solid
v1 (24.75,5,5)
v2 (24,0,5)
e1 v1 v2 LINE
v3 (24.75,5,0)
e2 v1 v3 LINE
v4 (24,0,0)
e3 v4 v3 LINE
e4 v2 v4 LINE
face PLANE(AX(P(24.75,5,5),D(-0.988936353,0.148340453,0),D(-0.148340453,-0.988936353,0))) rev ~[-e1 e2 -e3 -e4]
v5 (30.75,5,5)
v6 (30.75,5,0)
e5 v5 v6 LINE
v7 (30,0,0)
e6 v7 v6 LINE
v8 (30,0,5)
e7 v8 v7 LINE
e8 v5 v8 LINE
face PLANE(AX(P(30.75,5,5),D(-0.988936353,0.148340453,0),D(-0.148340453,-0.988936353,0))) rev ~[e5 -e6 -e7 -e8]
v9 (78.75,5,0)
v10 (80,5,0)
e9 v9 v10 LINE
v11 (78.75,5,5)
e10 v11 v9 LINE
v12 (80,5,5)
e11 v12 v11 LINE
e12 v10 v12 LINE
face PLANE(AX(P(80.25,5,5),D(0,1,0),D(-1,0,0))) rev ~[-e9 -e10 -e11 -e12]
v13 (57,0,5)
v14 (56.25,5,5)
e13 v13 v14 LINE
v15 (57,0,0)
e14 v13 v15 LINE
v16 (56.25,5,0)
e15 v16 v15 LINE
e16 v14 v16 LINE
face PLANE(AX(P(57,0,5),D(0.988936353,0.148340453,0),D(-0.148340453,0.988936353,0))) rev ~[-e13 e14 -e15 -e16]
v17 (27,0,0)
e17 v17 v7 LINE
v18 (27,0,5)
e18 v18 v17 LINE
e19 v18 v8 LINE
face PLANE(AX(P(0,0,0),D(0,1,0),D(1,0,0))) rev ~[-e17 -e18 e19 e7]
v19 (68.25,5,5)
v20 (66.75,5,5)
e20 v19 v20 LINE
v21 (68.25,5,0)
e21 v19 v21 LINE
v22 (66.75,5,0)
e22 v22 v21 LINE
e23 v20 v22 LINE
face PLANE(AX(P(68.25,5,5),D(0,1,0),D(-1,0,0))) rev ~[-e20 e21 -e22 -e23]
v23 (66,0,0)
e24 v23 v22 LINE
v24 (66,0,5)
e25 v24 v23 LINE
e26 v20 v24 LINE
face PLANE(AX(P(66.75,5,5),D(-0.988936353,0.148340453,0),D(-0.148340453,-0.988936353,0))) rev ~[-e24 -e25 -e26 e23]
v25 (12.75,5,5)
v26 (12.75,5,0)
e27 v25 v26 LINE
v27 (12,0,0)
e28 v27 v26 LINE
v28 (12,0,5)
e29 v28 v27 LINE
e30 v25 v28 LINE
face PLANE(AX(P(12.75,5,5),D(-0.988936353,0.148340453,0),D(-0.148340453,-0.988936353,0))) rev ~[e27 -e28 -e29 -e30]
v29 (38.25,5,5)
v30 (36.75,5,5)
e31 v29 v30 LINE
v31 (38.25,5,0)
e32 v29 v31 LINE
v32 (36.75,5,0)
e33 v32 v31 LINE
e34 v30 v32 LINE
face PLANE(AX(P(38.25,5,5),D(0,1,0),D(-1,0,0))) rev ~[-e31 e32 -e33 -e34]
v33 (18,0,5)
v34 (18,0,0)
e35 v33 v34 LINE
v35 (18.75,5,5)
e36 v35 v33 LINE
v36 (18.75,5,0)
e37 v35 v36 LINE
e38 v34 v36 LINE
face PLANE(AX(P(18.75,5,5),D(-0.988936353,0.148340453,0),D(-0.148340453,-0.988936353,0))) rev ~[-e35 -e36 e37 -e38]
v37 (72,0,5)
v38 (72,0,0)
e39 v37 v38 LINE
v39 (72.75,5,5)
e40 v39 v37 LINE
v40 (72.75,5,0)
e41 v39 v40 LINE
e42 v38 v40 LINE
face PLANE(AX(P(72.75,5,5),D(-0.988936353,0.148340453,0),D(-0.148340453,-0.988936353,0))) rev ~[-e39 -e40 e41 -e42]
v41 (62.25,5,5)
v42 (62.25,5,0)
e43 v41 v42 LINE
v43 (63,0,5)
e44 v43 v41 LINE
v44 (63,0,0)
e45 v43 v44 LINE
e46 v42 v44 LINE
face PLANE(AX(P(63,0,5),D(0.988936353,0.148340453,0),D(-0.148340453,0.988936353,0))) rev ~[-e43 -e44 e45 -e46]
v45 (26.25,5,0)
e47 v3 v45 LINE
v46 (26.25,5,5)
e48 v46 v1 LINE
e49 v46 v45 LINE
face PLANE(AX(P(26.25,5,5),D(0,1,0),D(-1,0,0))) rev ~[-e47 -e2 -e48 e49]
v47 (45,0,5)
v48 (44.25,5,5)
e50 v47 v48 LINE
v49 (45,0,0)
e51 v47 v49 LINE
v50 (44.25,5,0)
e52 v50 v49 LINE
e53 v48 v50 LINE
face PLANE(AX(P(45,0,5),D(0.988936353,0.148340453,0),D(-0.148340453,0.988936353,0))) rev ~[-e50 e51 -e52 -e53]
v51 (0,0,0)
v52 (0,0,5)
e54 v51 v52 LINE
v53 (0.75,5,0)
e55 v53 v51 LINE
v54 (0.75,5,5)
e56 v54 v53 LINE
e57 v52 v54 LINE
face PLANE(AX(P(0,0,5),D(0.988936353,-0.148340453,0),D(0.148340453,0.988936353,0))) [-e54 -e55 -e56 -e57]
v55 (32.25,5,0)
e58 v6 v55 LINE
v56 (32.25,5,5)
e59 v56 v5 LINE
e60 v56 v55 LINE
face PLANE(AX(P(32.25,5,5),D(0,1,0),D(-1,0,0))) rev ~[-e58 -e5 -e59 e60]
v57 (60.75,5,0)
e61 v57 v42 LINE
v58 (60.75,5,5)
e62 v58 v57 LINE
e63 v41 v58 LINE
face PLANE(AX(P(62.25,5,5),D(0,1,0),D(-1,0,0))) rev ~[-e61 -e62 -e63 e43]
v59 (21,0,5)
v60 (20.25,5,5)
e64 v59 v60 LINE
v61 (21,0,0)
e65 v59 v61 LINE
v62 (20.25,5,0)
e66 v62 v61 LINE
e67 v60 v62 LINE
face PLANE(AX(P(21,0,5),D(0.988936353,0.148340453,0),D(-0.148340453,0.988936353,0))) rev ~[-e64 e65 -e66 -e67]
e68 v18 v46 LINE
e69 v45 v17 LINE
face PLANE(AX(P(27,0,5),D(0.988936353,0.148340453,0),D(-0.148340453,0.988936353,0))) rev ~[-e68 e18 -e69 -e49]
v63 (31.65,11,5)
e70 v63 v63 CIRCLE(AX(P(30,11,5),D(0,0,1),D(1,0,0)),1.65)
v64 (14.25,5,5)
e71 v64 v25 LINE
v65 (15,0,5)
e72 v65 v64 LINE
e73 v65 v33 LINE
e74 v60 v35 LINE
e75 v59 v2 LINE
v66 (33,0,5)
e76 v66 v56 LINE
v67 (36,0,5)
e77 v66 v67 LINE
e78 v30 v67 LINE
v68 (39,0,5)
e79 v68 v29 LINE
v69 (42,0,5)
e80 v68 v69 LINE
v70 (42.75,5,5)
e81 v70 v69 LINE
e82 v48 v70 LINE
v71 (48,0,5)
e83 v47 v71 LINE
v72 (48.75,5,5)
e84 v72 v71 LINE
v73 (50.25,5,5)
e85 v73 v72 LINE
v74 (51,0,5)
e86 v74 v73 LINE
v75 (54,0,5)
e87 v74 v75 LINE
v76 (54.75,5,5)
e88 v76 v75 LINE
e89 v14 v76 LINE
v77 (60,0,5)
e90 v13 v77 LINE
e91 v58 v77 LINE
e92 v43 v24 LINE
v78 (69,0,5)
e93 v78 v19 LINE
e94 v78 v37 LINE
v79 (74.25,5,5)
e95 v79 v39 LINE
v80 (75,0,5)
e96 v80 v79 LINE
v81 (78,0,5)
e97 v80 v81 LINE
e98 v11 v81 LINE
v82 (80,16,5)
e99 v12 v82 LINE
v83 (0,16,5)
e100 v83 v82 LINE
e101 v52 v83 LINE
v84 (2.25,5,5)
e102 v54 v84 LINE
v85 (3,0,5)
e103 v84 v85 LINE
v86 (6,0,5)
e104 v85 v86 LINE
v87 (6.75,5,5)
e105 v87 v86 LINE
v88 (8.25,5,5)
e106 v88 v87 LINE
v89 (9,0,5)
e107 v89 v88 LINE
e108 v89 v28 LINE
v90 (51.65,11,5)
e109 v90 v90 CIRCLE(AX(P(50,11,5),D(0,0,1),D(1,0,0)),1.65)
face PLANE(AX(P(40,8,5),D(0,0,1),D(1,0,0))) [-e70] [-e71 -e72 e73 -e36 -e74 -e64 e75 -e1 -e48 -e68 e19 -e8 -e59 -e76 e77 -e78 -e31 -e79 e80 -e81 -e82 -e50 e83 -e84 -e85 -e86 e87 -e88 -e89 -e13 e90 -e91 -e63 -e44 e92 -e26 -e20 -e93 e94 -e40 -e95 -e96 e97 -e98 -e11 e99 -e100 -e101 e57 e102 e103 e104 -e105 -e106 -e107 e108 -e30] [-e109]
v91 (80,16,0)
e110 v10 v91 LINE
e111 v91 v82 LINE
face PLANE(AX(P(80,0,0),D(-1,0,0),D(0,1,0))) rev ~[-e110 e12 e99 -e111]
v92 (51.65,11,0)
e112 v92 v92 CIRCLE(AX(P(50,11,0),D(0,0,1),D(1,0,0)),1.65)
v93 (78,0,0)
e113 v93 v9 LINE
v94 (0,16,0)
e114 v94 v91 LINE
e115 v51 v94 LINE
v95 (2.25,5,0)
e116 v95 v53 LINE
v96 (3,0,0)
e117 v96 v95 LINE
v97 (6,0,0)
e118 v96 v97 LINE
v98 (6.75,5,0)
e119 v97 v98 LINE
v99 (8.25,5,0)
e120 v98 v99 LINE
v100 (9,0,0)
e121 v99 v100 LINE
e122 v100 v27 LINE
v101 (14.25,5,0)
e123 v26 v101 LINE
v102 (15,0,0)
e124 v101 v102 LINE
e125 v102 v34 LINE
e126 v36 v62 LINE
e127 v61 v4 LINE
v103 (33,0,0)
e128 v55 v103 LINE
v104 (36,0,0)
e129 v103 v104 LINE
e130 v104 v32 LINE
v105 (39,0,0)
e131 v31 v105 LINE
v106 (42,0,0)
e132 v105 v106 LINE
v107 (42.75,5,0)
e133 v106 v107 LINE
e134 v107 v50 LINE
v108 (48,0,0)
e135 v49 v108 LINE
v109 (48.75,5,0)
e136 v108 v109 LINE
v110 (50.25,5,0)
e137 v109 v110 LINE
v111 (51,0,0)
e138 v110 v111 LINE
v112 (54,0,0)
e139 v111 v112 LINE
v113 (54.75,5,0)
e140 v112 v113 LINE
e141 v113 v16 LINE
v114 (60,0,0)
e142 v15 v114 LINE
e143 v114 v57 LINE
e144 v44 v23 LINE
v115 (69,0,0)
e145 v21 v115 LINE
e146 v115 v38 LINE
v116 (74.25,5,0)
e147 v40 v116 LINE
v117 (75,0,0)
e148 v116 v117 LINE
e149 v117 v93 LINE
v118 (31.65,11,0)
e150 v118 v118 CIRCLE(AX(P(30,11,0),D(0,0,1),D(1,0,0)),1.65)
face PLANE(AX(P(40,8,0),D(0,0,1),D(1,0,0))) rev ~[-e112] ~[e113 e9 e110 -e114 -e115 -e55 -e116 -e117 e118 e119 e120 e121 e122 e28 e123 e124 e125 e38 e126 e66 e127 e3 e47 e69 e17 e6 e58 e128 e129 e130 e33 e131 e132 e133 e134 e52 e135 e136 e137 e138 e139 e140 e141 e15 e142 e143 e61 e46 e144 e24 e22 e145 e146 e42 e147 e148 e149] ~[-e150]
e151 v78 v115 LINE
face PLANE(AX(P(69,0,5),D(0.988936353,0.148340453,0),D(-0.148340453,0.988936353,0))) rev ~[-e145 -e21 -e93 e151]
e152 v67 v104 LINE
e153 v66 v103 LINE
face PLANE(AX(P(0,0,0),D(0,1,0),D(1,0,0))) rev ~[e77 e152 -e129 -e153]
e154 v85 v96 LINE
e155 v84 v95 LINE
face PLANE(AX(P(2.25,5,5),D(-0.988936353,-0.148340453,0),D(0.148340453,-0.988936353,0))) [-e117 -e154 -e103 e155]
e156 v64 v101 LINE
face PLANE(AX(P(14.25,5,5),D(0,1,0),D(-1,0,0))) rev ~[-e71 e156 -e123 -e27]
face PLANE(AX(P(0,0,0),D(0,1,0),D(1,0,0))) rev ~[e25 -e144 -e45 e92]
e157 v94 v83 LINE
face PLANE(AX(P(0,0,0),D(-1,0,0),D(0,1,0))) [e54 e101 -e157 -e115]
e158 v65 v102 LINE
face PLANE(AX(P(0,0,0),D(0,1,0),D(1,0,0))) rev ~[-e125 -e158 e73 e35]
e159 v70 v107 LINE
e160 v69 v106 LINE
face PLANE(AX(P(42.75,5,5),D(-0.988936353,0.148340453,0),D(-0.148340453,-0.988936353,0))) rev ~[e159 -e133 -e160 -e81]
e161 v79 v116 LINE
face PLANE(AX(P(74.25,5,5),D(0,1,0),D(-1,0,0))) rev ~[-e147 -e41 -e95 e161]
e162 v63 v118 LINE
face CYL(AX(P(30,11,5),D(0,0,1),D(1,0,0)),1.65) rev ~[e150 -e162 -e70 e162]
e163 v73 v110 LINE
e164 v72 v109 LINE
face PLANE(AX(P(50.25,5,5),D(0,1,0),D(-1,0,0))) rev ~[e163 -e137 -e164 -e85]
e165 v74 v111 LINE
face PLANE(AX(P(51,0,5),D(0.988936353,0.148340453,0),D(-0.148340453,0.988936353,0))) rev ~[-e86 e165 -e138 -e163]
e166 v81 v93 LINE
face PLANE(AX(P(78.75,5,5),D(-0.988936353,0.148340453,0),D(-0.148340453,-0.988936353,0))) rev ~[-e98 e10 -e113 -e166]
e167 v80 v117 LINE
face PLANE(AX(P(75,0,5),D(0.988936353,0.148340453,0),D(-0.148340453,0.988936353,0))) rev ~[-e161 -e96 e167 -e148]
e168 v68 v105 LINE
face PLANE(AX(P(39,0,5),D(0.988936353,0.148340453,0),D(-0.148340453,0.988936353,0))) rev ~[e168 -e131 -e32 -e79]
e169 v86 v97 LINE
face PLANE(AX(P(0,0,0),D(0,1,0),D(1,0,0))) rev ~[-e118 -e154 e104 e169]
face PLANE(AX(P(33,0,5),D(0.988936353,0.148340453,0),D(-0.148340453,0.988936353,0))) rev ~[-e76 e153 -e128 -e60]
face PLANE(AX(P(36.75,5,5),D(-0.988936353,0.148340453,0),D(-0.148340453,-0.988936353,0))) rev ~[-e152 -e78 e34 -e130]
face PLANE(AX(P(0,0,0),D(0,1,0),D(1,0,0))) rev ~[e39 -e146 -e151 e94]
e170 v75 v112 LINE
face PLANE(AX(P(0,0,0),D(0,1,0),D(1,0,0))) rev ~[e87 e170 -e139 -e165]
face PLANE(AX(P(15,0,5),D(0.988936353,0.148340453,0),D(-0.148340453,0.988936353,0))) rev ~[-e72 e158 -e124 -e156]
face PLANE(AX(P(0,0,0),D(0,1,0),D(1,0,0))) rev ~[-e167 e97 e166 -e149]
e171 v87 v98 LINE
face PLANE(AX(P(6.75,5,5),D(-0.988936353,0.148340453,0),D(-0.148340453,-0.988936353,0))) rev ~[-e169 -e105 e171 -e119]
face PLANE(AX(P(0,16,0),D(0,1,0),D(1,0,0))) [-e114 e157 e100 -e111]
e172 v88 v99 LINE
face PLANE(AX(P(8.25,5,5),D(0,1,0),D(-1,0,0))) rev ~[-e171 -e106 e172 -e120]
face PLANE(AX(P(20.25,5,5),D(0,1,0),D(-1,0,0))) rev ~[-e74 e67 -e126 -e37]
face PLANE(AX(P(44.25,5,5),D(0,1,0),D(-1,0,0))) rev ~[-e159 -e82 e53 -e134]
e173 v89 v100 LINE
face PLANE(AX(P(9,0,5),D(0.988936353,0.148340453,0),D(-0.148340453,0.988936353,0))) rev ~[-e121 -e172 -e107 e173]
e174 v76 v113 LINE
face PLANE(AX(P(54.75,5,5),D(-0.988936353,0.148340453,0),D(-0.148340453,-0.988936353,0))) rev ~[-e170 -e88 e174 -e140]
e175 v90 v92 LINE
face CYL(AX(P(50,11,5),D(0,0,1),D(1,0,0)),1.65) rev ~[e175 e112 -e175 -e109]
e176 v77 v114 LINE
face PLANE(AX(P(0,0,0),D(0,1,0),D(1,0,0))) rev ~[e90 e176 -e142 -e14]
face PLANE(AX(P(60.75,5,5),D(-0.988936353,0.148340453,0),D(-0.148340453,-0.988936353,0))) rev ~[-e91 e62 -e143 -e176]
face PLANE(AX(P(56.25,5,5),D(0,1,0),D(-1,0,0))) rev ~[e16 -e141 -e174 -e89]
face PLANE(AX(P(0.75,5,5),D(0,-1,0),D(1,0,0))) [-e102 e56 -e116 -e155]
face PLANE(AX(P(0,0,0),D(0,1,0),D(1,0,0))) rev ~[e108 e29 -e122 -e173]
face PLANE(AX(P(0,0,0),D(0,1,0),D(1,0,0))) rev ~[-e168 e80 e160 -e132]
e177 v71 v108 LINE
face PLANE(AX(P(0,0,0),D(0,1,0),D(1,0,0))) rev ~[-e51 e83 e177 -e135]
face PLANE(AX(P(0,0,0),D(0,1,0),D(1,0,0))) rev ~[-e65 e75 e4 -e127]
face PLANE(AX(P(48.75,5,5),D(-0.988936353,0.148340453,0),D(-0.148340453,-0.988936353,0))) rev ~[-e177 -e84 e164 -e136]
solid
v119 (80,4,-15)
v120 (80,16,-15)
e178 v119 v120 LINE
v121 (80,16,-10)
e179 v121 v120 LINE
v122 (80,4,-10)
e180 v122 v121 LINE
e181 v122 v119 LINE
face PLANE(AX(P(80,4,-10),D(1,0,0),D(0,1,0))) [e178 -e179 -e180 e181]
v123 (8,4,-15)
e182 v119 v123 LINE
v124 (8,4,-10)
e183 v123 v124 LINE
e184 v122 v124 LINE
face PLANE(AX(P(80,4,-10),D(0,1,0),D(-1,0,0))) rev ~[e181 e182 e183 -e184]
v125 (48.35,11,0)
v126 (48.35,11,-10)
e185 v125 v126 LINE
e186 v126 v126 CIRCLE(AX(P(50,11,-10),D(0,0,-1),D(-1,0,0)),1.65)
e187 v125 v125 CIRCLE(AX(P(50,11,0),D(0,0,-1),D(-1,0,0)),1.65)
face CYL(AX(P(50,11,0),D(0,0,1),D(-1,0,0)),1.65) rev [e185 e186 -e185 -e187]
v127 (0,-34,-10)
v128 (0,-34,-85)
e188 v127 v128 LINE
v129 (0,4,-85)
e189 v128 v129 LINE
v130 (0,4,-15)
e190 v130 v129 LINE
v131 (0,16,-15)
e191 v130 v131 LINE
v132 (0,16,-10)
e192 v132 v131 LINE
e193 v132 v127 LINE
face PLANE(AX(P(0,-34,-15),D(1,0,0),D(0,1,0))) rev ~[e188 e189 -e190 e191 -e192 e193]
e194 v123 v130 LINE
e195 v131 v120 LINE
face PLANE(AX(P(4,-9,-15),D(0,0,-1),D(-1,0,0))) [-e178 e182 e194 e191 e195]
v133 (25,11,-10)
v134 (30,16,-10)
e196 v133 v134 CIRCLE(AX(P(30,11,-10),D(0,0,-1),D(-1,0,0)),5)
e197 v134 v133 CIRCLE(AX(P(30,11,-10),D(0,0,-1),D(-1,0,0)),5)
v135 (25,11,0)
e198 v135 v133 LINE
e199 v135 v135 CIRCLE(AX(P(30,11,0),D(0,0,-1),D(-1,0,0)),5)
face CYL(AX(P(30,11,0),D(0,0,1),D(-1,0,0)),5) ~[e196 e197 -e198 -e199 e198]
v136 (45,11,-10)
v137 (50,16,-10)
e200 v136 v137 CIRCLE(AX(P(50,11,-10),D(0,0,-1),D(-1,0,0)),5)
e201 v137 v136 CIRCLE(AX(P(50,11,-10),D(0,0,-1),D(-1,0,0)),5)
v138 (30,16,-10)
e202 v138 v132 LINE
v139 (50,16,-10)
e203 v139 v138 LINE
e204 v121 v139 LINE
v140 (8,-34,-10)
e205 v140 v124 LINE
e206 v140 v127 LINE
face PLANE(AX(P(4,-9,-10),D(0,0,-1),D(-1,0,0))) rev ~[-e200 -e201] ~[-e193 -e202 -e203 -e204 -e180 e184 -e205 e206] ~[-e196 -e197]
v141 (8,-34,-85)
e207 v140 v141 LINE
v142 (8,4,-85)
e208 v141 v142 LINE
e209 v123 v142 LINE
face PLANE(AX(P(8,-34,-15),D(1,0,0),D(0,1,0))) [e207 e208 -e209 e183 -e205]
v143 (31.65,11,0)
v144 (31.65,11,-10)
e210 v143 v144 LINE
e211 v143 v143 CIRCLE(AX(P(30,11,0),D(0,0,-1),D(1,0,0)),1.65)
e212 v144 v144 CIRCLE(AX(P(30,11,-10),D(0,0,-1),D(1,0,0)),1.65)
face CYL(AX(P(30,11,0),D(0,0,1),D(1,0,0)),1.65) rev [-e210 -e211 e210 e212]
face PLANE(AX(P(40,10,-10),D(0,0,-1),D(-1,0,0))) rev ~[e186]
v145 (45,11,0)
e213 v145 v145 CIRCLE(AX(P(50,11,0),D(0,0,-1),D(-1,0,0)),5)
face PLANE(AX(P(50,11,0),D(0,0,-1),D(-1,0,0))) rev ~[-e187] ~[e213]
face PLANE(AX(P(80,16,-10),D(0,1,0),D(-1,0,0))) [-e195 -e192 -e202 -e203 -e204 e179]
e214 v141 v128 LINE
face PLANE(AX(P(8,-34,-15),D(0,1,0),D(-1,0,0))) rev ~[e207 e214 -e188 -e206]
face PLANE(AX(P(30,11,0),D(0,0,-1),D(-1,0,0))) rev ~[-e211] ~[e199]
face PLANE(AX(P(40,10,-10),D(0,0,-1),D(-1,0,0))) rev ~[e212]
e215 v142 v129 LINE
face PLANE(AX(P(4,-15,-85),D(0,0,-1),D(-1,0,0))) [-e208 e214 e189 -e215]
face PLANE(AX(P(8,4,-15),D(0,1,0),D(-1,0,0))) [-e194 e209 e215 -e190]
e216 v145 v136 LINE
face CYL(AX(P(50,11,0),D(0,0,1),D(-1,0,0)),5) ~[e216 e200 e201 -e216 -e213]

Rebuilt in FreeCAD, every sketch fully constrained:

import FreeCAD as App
import Part
import Sketcher
Q = App.Units.Quantity


def add_polygon(sketch, points):
    """Adds a closed chain of lines whose ends are joined by coincident constraints."""
    first, n = sketch.GeometryCount, len(points)
    for a, b in zip(points, points[1:] + points[:1]):
        sketch.addGeometry(Part.LineSegment(App.Vector(*a, 0), App.Vector(*b, 0)), False)
    for i in range(n):
        sketch.addConstraint(Sketcher.Constraint("Coincident", first + i, 2, first + (i + 1) % n, 1))

doc = App.newDocument("Part")
body = doc.addObject("PartDesign::Body", "Body")

# Sketch on XY plane
sketch1 = doc.addObject("Sketcher::SketchObject", "Sketch")
body.addObject(sketch1)
sketch1.AttachmentSupport = (doc.XY_Plane, [""])
sketch1.MapMode = "FlatFace"
add_polygon(sketch1, [(0, 16), (0, 0), (80, 0), (80, 16)])  # lines 0-3
sketch1.addConstraint([
    Sketcher.Constraint("Vertical", 0),
    Sketcher.Constraint("Horizontal", 1),
    Sketcher.Constraint("Vertical", 2),
    Sketcher.Constraint("Horizontal", 3),
    Sketcher.Constraint("Coincident", 0, 2, -1, 1),
    Sketcher.Constraint("DistanceX", 1, 1, 1, 2, Q("80 mm")),
    Sketcher.Constraint("DistanceY", 0, 2, 0, 1, Q("16 mm")),
])
pad1 = doc.addObject("PartDesign::Pad", "Pad")
body.addObject(pad1)
pad1.Profile = sketch1
pad1.Length = 5

# Sketch on XY plane
sketch2 = doc.addObject("Sketcher::SketchObject", "Sketch001")
body.addObject(sketch2)
sketch2.AttachmentSupport = (doc.XY_Plane, [""])
sketch2.MapMode = "FlatFace"
sketch2.AttachmentOffset = App.Placement(App.Vector(0, 0, 5), App.Rotation())
add_polygon(sketch2, [(0.8, 5), (0, 0), (3, 0), (2.2, 5)])  # lines 0-3
sketch2.addConstraint([
    Sketcher.Constraint("Horizontal", 1),
    Sketcher.Constraint("Horizontal", 3),
    Sketcher.Constraint("Coincident", 0, 2, -1, 1),
    Sketcher.Constraint("Equal", 0, 2),
    Sketcher.Constraint("DistanceX", 1, 1, 1, 2, Q("3 mm")),
    Sketcher.Constraint("DistanceX", 3, 2, 3, 1, Q("1.5 mm")),
    Sketcher.Constraint("DistanceY", -1, 1, 2, 2, Q("5 mm")),
])
pocket1 = doc.addObject("PartDesign::Pocket", "Pocket")
body.addObject(pocket1)
pocket1.Profile = sketch2
pocket1.Type = "UpToFirst"

# Sketch on XY plane
sketch3 = doc.addObject("Sketcher::SketchObject", "Sketch002")
body.addObject(sketch3)
sketch3.AttachmentSupport = (doc.XY_Plane, [""])
sketch3.MapMode = "FlatFace"
sketch3.AttachmentOffset = App.Placement(App.Vector(0, 0, 5), App.Rotation())
add_polygon(sketch3, [(6, 0), (9, 0), (8.2, 5), (6.8, 5)])  # lines 0-3
sketch3.addConstraint([
    Sketcher.Constraint("Horizontal", 0),
    Sketcher.Constraint("Horizontal", 2),
    Sketcher.Constraint("PointOnObject", 0, 2, -1),
    Sketcher.Constraint("Equal", 1, 3),
    Sketcher.Constraint("DistanceX", 0, 1, 0, 2, Q("3 mm")),
    Sketcher.Constraint("DistanceX", 2, 2, 2, 1, Q("1.5 mm")),
    Sketcher.Constraint("DistanceX", -1, 1, 0, 2, Q("9 mm")),
    Sketcher.Constraint("DistanceY", -1, 1, 1, 2, Q("5 mm")),
])
pocket2 = doc.addObject("PartDesign::Pocket", "Pocket001")
body.addObject(pocket2)
pocket2.Profile = sketch3
pocket2.Type = "UpToFirst"

# Sketch on XY plane
sketch4 = doc.addObject("Sketcher::SketchObject", "Sketch003")
body.addObject(sketch4)
sketch4.AttachmentSupport = (doc.XY_Plane, [""])
sketch4.MapMode = "FlatFace"
sketch4.AttachmentOffset = App.Placement(App.Vector(0, 0, 5), App.Rotation())
add_polygon(sketch4, [(12, 0), (15, 0), (14.2, 5), (12.8, 5)])  # lines 0-3
sketch4.addConstraint([
    Sketcher.Constraint("Horizontal", 0),
    Sketcher.Constraint("Horizontal", 2),
    Sketcher.Constraint("PointOnObject", 0, 2, -1),
    Sketcher.Constraint("Equal", 1, 3),
    Sketcher.Constraint("DistanceX", 0, 1, 0, 2, Q("3 mm")),
    Sketcher.Constraint("DistanceX", 2, 2, 2, 1, Q("1.5 mm")),
    Sketcher.Constraint("DistanceX", -1, 1, 0, 2, Q("15 mm")),
    Sketcher.Constraint("DistanceY", -1, 1, 1, 2, Q("5 mm")),
])
pocket3 = doc.addObject("PartDesign::Pocket", "Pocket002")
body.addObject(pocket3)
pocket3.Profile = sketch4
pocket3.Type = "UpToFirst"

# Sketch on XY plane
sketch5 = doc.addObject("Sketcher::SketchObject", "Sketch004")
body.addObject(sketch5)
sketch5.AttachmentSupport = (doc.XY_Plane, [""])
sketch5.MapMode = "FlatFace"
sketch5.AttachmentOffset = App.Placement(App.Vector(0, 0, 5), App.Rotation())
add_polygon(sketch5, [(18, 0), (21, 0), (20.2, 5), (18.8, 5)])  # lines 0-3
sketch5.addConstraint([
    Sketcher.Constraint("Horizontal", 0),
    Sketcher.Constraint("Horizontal", 2),
    Sketcher.Constraint("PointOnObject", 0, 2, -1),
    Sketcher.Constraint("Equal", 1, 3),
    Sketcher.Constraint("DistanceX", 0, 1, 0, 2, Q("3 mm")),
    Sketcher.Constraint("DistanceX", 2, 2, 2, 1, Q("1.5 mm")),
    Sketcher.Constraint("DistanceX", -1, 1, 0, 2, Q("21 mm")),
    Sketcher.Constraint("DistanceY", -1, 1, 1, 2, Q("5 mm")),
])
pocket4 = doc.addObject("PartDesign::Pocket", "Pocket003")
body.addObject(pocket4)
pocket4.Profile = sketch5
pocket4.Type = "UpToFirst"

# Sketch on XY plane
sketch6 = doc.addObject("Sketcher::SketchObject", "Sketch005")
body.addObject(sketch6)
sketch6.AttachmentSupport = (doc.XY_Plane, [""])
sketch6.MapMode = "FlatFace"
sketch6.AttachmentOffset = App.Placement(App.Vector(0, 0, 5), App.Rotation())
add_polygon(sketch6, [(24, 0), (27, 0), (26.2, 5), (24.8, 5)])  # lines 0-3
sketch6.addConstraint([
    Sketcher.Constraint("Horizontal", 0),
    Sketcher.Constraint("Horizontal", 2),
    Sketcher.Constraint("PointOnObject", 0, 2, -1),
    Sketcher.Constraint("Equal", 1, 3),
    Sketcher.Constraint("DistanceX", 0, 1, 0, 2, Q("3 mm")),
    Sketcher.Constraint("DistanceX", 2, 2, 2, 1, Q("1.5 mm")),
    Sketcher.Constraint("DistanceX", -1, 1, 0, 2, Q("27 mm")),
    Sketcher.Constraint("DistanceY", -1, 1, 1, 2, Q("5 mm")),
])
pocket5 = doc.addObject("PartDesign::Pocket", "Pocket004")
body.addObject(pocket5)
pocket5.Profile = sketch6
pocket5.Type = "UpToFirst"

# Sketch on XY plane
sketch7 = doc.addObject("Sketcher::SketchObject", "Sketch006")
body.addObject(sketch7)
sketch7.AttachmentSupport = (doc.XY_Plane, [""])
sketch7.MapMode = "FlatFace"
sketch7.AttachmentOffset = App.Placement(App.Vector(0, 0, 5), App.Rotation())
add_polygon(sketch7, [(30, 0), (33, 0), (32.2, 5), (30.8, 5)])  # lines 0-3
sketch7.addConstraint([
    Sketcher.Constraint("Horizontal", 0),
    Sketcher.Constraint("Horizontal", 2),
    Sketcher.Constraint("PointOnObject", 0, 2, -1),
    Sketcher.Constraint("Equal", 1, 3),
    Sketcher.Constraint("DistanceX", 0, 1, 0, 2, Q("3 mm")),
    Sketcher.Constraint("DistanceX", 2, 2, 2, 1, Q("1.5 mm")),
    Sketcher.Constraint("DistanceX", -1, 1, 0, 2, Q("33 mm")),
    Sketcher.Constraint("DistanceY", -1, 1, 1, 2, Q("5 mm")),
])
pocket6 = doc.addObject("PartDesign::Pocket", "Pocket005")
body.addObject(pocket6)
pocket6.Profile = sketch7
pocket6.Type = "UpToFirst"

# Sketch on XY plane
sketch8 = doc.addObject("Sketcher::SketchObject", "Sketch007")
body.addObject(sketch8)
sketch8.AttachmentSupport = (doc.XY_Plane, [""])
sketch8.MapMode = "FlatFace"
sketch8.AttachmentOffset = App.Placement(App.Vector(0, 0, 5), App.Rotation())
add_polygon(sketch8, [(36, 0), (39, 0), (38.2, 5), (36.8, 5)])  # lines 0-3
sketch8.addConstraint([
    Sketcher.Constraint("Horizontal", 0),
    Sketcher.Constraint("Horizontal", 2),
    Sketcher.Constraint("PointOnObject", 0, 2, -1),
    Sketcher.Constraint("Equal", 1, 3),
    Sketcher.Constraint("DistanceX", 0, 1, 0, 2, Q("3 mm")),
    Sketcher.Constraint("DistanceX", 2, 2, 2, 1, Q("1.5 mm")),
    Sketcher.Constraint("DistanceX", -1, 1, 0, 2, Q("39 mm")),
    Sketcher.Constraint("DistanceY", -1, 1, 1, 2, Q("5 mm")),
])
pocket7 = doc.addObject("PartDesign::Pocket", "Pocket006")
body.addObject(pocket7)
pocket7.Profile = sketch8
pocket7.Type = "UpToFirst"

# Sketch on XY plane
sketch9 = doc.addObject("Sketcher::SketchObject", "Sketch008")
body.addObject(sketch9)
sketch9.AttachmentSupport = (doc.XY_Plane, [""])
sketch9.MapMode = "FlatFace"
sketch9.AttachmentOffset = App.Placement(App.Vector(0, 0, 5), App.Rotation())
add_polygon(sketch9, [(42, 0), (45, 0), (44.2, 5), (42.8, 5)])  # lines 0-3
sketch9.addConstraint([
    Sketcher.Constraint("Horizontal", 0),
    Sketcher.Constraint("Horizontal", 2),
    Sketcher.Constraint("PointOnObject", 0, 2, -1),
    Sketcher.Constraint("Equal", 1, 3),
    Sketcher.Constraint("DistanceX", 0, 1, 0, 2, Q("3 mm")),
    Sketcher.Constraint("DistanceX", 2, 2, 2, 1, Q("1.5 mm")),
    Sketcher.Constraint("DistanceX", -1, 1, 0, 2, Q("45 mm")),
    Sketcher.Constraint("DistanceY", -1, 1, 1, 2, Q("5 mm")),
])
pocket8 = doc.addObject("PartDesign::Pocket", "Pocket007")
body.addObject(pocket8)
pocket8.Profile = sketch9
pocket8.Type = "UpToFirst"

# Sketch on XY plane
sketch10 = doc.addObject("Sketcher::SketchObject", "Sketch009")
body.addObject(sketch10)
sketch10.AttachmentSupport = (doc.XY_Plane, [""])
sketch10.MapMode = "FlatFace"
sketch10.AttachmentOffset = App.Placement(App.Vector(0, 0, 5), App.Rotation())
add_polygon(sketch10, [(48, 0), (51, 0), (50.2, 5), (48.8, 5)])  # lines 0-3
sketch10.addConstraint([
    Sketcher.Constraint("Horizontal", 0),
    Sketcher.Constraint("Horizontal", 2),
    Sketcher.Constraint("PointOnObject", 0, 2, -1),
    Sketcher.Constraint("Equal", 1, 3),
    Sketcher.Constraint("DistanceX", 0, 1, 0, 2, Q("3 mm")),
    Sketcher.Constraint("DistanceX", 2, 2, 2, 1, Q("1.5 mm")),
    Sketcher.Constraint("DistanceX", -1, 1, 0, 2, Q("51 mm")),
    Sketcher.Constraint("DistanceY", -1, 1, 1, 2, Q("5 mm")),
])
pocket9 = doc.addObject("PartDesign::Pocket", "Pocket008")
body.addObject(pocket9)
pocket9.Profile = sketch10
pocket9.Type = "UpToFirst"

# Sketch on XY plane
sketch11 = doc.addObject("Sketcher::SketchObject", "Sketch010")
body.addObject(sketch11)
sketch11.AttachmentSupport = (doc.XY_Plane, [""])
sketch11.MapMode = "FlatFace"
sketch11.AttachmentOffset = App.Placement(App.Vector(0, 0, 5), App.Rotation())
add_polygon(sketch11, [(54, 0), (57, 0), (56.2, 5), (54.8, 5)])  # lines 0-3
sketch11.addConstraint([
    Sketcher.Constraint("Horizontal", 0),
    Sketcher.Constraint("Horizontal", 2),
    Sketcher.Constraint("PointOnObject", 0, 2, -1),
    Sketcher.Constraint("Equal", 1, 3),
    Sketcher.Constraint("DistanceX", 0, 1, 0, 2, Q("3 mm")),
    Sketcher.Constraint("DistanceX", 2, 2, 2, 1, Q("1.5 mm")),
    Sketcher.Constraint("DistanceX", -1, 1, 0, 2, Q("57 mm")),
    Sketcher.Constraint("DistanceY", -1, 1, 1, 2, Q("5 mm")),
])
pocket10 = doc.addObject("PartDesign::Pocket", "Pocket009")
body.addObject(pocket10)
pocket10.Profile = sketch11
pocket10.Type = "UpToFirst"

# Sketch on XY plane
sketch12 = doc.addObject("Sketcher::SketchObject", "Sketch011")
body.addObject(sketch12)
sketch12.AttachmentSupport = (doc.XY_Plane, [""])
sketch12.MapMode = "FlatFace"
sketch12.AttachmentOffset = App.Placement(App.Vector(0, 0, 5), App.Rotation())
add_polygon(sketch12, [(60, 0), (63, 0), (62.2, 5), (60.8, 5)])  # lines 0-3
sketch12.addConstraint([
    Sketcher.Constraint("Horizontal", 0),
    Sketcher.Constraint("Horizontal", 2),
    Sketcher.Constraint("PointOnObject", 0, 2, -1),
    Sketcher.Constraint("Equal", 1, 3),
    Sketcher.Constraint("DistanceX", 0, 1, 0, 2, Q("3 mm")),
    Sketcher.Constraint("DistanceX", 2, 2, 2, 1, Q("1.5 mm")),
    Sketcher.Constraint("DistanceX", -1, 1, 0, 2, Q("63 mm")),
    Sketcher.Constraint("DistanceY", -1, 1, 1, 2, Q("5 mm")),
])
pocket11 = doc.addObject("PartDesign::Pocket", "Pocket010")
body.addObject(pocket11)
pocket11.Profile = sketch12
pocket11.Type = "UpToFirst"

# Sketch on XY plane
sketch13 = doc.addObject("Sketcher::SketchObject", "Sketch012")
body.addObject(sketch13)
sketch13.AttachmentSupport = (doc.XY_Plane, [""])
sketch13.MapMode = "FlatFace"
sketch13.AttachmentOffset = App.Placement(App.Vector(0, 0, 5), App.Rotation())
add_polygon(sketch13, [(66, 0), (69, 0), (68.2, 5), (66.8, 5)])  # lines 0-3
sketch13.addConstraint([
    Sketcher.Constraint("Horizontal", 0),
    Sketcher.Constraint("Horizontal", 2),
    Sketcher.Constraint("PointOnObject", 0, 2, -1),
    Sketcher.Constraint("Equal", 1, 3),
    Sketcher.Constraint("DistanceX", 0, 1, 0, 2, Q("3 mm")),
    Sketcher.Constraint("DistanceX", 2, 2, 2, 1, Q("1.5 mm")),
    Sketcher.Constraint("DistanceX", -1, 1, 0, 2, Q("69 mm")),
    Sketcher.Constraint("DistanceY", -1, 1, 1, 2, Q("5 mm")),
])
pocket12 = doc.addObject("PartDesign::Pocket", "Pocket011")
body.addObject(pocket12)
pocket12.Profile = sketch13
pocket12.Type = "UpToFirst"

# Sketch on XY plane
sketch14 = doc.addObject("Sketcher::SketchObject", "Sketch013")
body.addObject(sketch14)
sketch14.AttachmentSupport = (doc.XY_Plane, [""])
sketch14.MapMode = "FlatFace"
sketch14.AttachmentOffset = App.Placement(App.Vector(0, 0, 5), App.Rotation())
add_polygon(sketch14, [(72, 0), (75, 0), (74.2, 5), (72.8, 5)])  # lines 0-3
sketch14.addConstraint([
    Sketcher.Constraint("Horizontal", 0),
    Sketcher.Constraint("Horizontal", 2),
    Sketcher.Constraint("PointOnObject", 0, 2, -1),
    Sketcher.Constraint("Equal", 1, 3),
    Sketcher.Constraint("DistanceX", 0, 1, 0, 2, Q("3 mm")),
    Sketcher.Constraint("DistanceX", 2, 2, 2, 1, Q("1.5 mm")),
    Sketcher.Constraint("DistanceX", -1, 1, 0, 2, Q("75 mm")),
    Sketcher.Constraint("DistanceY", -1, 1, 1, 2, Q("5 mm")),
])
pocket13 = doc.addObject("PartDesign::Pocket", "Pocket012")
body.addObject(pocket13)
pocket13.Profile = sketch14
pocket13.Type = "UpToFirst"

# Sketch on XY plane
sketch15 = doc.addObject("Sketcher::SketchObject", "Sketch014")
body.addObject(sketch15)
sketch15.AttachmentSupport = (doc.XY_Plane, [""])
sketch15.MapMode = "FlatFace"
sketch15.AttachmentOffset = App.Placement(App.Vector(0, 0, 5), App.Rotation())
add_polygon(sketch15, [(78, 0), (81, 0), (80.2, 5), (78.8, 5)])  # lines 0-3
sketch15.addConstraint([
    Sketcher.Constraint("Horizontal", 0),
    Sketcher.Constraint("Horizontal", 2),
    Sketcher.Constraint("PointOnObject", 0, 2, -1),
    Sketcher.Constraint("Equal", 1, 3),
    Sketcher.Constraint("DistanceX", 0, 1, 0, 2, Q("3 mm")),
    Sketcher.Constraint("DistanceX", 2, 2, 2, 1, Q("1.5 mm")),
    Sketcher.Constraint("DistanceX", -1, 1, 0, 2, Q("81 mm")),
    Sketcher.Constraint("DistanceY", -1, 1, 1, 2, Q("5 mm")),
])
pocket14 = doc.addObject("PartDesign::Pocket", "Pocket013")
body.addObject(pocket14)
pocket14.Profile = sketch15
pocket14.Type = "UpToFirst"

# Sketch on XY plane
sketch16 = doc.addObject("Sketcher::SketchObject", "Sketch015")
body.addObject(sketch16)
sketch16.AttachmentSupport = (doc.XY_Plane, [""])
sketch16.MapMode = "FlatFace"
sketch16.AttachmentOffset = App.Placement(App.Vector(0, 0, 5), App.Rotation())
sketch16.addGeometry(Part.Circle(App.Vector(30, 11, 0), App.Vector(0, 0, 1), 1.6), False)
sketch16.addConstraint([
    Sketcher.Constraint("Diameter", 0, Q("3.3 mm")),
    Sketcher.Constraint("DistanceX", -1, 1, 0, 3, Q("30 mm")),
    Sketcher.Constraint("DistanceY", -1, 1, 0, 3, Q("11 mm")),
])
pocket15 = doc.addObject("PartDesign::Pocket", "Pocket014")
body.addObject(pocket15)
pocket15.Profile = sketch16
pocket15.Type = "UpToFirst"

# Sketch on XY plane
sketch17 = doc.addObject("Sketcher::SketchObject", "Sketch016")
body.addObject(sketch17)
sketch17.AttachmentSupport = (doc.XY_Plane, [""])
sketch17.MapMode = "FlatFace"
sketch17.AttachmentOffset = App.Placement(App.Vector(0, 0, 5), App.Rotation())
sketch17.addGeometry(Part.Circle(App.Vector(50, 11, 0), App.Vector(0, 0, 1), 1.6), False)
sketch17.addConstraint([
    Sketcher.Constraint("Diameter", 0, Q("3.3 mm")),
    Sketcher.Constraint("DistanceX", -1, 1, 0, 3, Q("50 mm")),
    Sketcher.Constraint("DistanceY", -1, 1, 0, 3, Q("11 mm")),
])
pocket16 = doc.addObject("PartDesign::Pocket", "Pocket015")
body.addObject(pocket16)
pocket16.Profile = sketch17
pocket16.Type = "UpToFirst"
body2 = doc.addObject("PartDesign::Body", "Body001")

# Sketch on XY plane
sketch18 = doc.addObject("Sketcher::SketchObject", "Sketch017")
body2.addObject(sketch18)
sketch18.AttachmentSupport = (doc.getObject("XY_Plane001"), [""])
sketch18.MapMode = "FlatFace"
sketch18.addGeometry([
    Part.Circle(App.Vector(50, 11, 0), App.Vector(0, 0, 1), 5),
    Part.Circle(App.Vector(50, 11, 0), App.Vector(0, 0, 1), 1.6),
], False)
sketch18.addConstraint([
    Sketcher.Constraint("Coincident", 1, 3, 0, 3),
    Sketcher.Constraint("Diameter", 0, Q("10 mm")),
    Sketcher.Constraint("Diameter", 1, Q("3.3 mm")),
    Sketcher.Constraint("DistanceX", -1, 1, 0, 3, Q("50 mm")),
    Sketcher.Constraint("DistanceY", -1, 1, 0, 3, Q("11 mm")),
])
pad2 = doc.addObject("PartDesign::Pad", "Pad001")
body2.addObject(pad2)
pad2.Profile = sketch18
pad2.Length = 10
pad2.Reversed = True
body3 = doc.addObject("PartDesign::Body", "Body002")

# Sketch on XY plane
sketch19 = doc.addObject("Sketcher::SketchObject", "Sketch018")
body3.addObject(sketch19)
sketch19.AttachmentSupport = (doc.getObject("XY_Plane002"), [""])
sketch19.MapMode = "FlatFace"
sketch19.addGeometry([
    Part.Circle(App.Vector(30, 11, 0), App.Vector(0, 0, 1), 5),
    Part.Circle(App.Vector(30, 11, 0), App.Vector(0, 0, 1), 1.6),
], False)
sketch19.addConstraint([
    Sketcher.Constraint("Coincident", 1, 3, 0, 3),
    Sketcher.Constraint("Diameter", 0, Q("10 mm")),
    Sketcher.Constraint("Diameter", 1, Q("3.3 mm")),
    Sketcher.Constraint("DistanceX", -1, 1, 0, 3, Q("30 mm")),
    Sketcher.Constraint("DistanceY", -1, 1, 0, 3, Q("11 mm")),
])
pad3 = doc.addObject("PartDesign::Pad", "Pad002")
body3.addObject(pad3)
pad3.Profile = sketch19
pad3.Length = 10
pad3.Reversed = True
body2.AllowCompound = True
doc.recompute()

boolean = doc.addObject("PartDesign::Boolean", "Boolean")
body2.addObject(boolean)
boolean.Type = "Fuse"
boolean.addObjects([body3])

# Sketch on XY plane
sketch20 = doc.addObject("Sketcher::SketchObject", "Sketch019")
body2.addObject(sketch20)
sketch20.AttachmentSupport = (doc.getObject("XY_Plane001"), [""])
sketch20.MapMode = "FlatFace"
sketch20.AttachmentOffset = App.Placement(App.Vector(0, 0, -10), App.Rotation())
add_polygon(sketch20, [(80, 16), (80, 4), (0, 4), (0, 16)])  # lines 0-3
sketch20.addConstraint([
    Sketcher.Constraint("Vertical", 0),
    Sketcher.Constraint("Horizontal", 1),
    Sketcher.Constraint("Vertical", 2),
    Sketcher.Constraint("Horizontal", 3),
    Sketcher.Constraint("PointOnObject", 1, 2, -2),
    Sketcher.Constraint("DistanceX", 1, 2, 1, 1, Q("80 mm")),
    Sketcher.Constraint("DistanceY", 0, 2, 0, 1, Q("12 mm")),
    Sketcher.Constraint("DistanceY", -1, 1, 0, 2, Q("4 mm")),
])
pad4 = doc.addObject("PartDesign::Pad", "Pad003")
body2.addObject(pad4)
pad4.Profile = sketch20
pad4.Length = 5
pad4.Reversed = True

# Sketch on XY plane
sketch21 = doc.addObject("Sketcher::SketchObject", "Sketch020")
body2.addObject(sketch21)
sketch21.AttachmentSupport = (doc.getObject("XY_Plane001"), [""])
sketch21.MapMode = "FlatFace"
sketch21.AttachmentOffset = App.Placement(App.Vector(0, 0, -15), App.Rotation())
add_polygon(sketch21, [(8, 16), (8, -34), (0, -34), (0, 16)])  # lines 0-3
sketch21.addConstraint([
    Sketcher.Constraint("Vertical", 0),
    Sketcher.Constraint("Horizontal", 1),
    Sketcher.Constraint("Vertical", 2),
    Sketcher.Constraint("Horizontal", 3),
    Sketcher.Constraint("PointOnObject", 1, 2, -2),
    Sketcher.Constraint("DistanceX", 1, 2, 1, 1, Q("8 mm")),
    Sketcher.Constraint("DistanceY", 0, 2, 0, 1, Q("50 mm")),
    Sketcher.Constraint("DistanceY", 0, 2, -1, 1, Q("34 mm")),
])
pad5 = doc.addObject("PartDesign::Pad", "Pad004")
body2.addObject(pad5)
pad5.Profile = sketch21
pad5.Length = 5

# Sketch on XY plane
sketch22 = doc.addObject("Sketcher::SketchObject", "Sketch021")
body2.addObject(sketch22)
sketch22.AttachmentSupport = (doc.getObject("XY_Plane001"), [""])
sketch22.MapMode = "FlatFace"
sketch22.AttachmentOffset = App.Placement(App.Vector(0, 0, -15), App.Rotation())
add_polygon(sketch22, [(8, 4), (8, -34), (0, -34), (0, 4)])  # lines 0-3
sketch22.addConstraint([
    Sketcher.Constraint("Vertical", 0),
    Sketcher.Constraint("Horizontal", 1),
    Sketcher.Constraint("Vertical", 2),
    Sketcher.Constraint("Horizontal", 3),
    Sketcher.Constraint("PointOnObject", 1, 2, -2),
    Sketcher.Constraint("DistanceX", 1, 2, 1, 1, Q("8 mm")),
    Sketcher.Constraint("DistanceY", 0, 2, 0, 1, Q("38 mm")),
    Sketcher.Constraint("DistanceY", 0, 2, -1, 1, Q("34 mm")),
])
pad6 = doc.addObject("PartDesign::Pad", "Pad005")
body2.addObject(pad6)
pad6.Profile = sketch22
pad6.Length = 70
pad6.Reversed = True

doc.recompute()
